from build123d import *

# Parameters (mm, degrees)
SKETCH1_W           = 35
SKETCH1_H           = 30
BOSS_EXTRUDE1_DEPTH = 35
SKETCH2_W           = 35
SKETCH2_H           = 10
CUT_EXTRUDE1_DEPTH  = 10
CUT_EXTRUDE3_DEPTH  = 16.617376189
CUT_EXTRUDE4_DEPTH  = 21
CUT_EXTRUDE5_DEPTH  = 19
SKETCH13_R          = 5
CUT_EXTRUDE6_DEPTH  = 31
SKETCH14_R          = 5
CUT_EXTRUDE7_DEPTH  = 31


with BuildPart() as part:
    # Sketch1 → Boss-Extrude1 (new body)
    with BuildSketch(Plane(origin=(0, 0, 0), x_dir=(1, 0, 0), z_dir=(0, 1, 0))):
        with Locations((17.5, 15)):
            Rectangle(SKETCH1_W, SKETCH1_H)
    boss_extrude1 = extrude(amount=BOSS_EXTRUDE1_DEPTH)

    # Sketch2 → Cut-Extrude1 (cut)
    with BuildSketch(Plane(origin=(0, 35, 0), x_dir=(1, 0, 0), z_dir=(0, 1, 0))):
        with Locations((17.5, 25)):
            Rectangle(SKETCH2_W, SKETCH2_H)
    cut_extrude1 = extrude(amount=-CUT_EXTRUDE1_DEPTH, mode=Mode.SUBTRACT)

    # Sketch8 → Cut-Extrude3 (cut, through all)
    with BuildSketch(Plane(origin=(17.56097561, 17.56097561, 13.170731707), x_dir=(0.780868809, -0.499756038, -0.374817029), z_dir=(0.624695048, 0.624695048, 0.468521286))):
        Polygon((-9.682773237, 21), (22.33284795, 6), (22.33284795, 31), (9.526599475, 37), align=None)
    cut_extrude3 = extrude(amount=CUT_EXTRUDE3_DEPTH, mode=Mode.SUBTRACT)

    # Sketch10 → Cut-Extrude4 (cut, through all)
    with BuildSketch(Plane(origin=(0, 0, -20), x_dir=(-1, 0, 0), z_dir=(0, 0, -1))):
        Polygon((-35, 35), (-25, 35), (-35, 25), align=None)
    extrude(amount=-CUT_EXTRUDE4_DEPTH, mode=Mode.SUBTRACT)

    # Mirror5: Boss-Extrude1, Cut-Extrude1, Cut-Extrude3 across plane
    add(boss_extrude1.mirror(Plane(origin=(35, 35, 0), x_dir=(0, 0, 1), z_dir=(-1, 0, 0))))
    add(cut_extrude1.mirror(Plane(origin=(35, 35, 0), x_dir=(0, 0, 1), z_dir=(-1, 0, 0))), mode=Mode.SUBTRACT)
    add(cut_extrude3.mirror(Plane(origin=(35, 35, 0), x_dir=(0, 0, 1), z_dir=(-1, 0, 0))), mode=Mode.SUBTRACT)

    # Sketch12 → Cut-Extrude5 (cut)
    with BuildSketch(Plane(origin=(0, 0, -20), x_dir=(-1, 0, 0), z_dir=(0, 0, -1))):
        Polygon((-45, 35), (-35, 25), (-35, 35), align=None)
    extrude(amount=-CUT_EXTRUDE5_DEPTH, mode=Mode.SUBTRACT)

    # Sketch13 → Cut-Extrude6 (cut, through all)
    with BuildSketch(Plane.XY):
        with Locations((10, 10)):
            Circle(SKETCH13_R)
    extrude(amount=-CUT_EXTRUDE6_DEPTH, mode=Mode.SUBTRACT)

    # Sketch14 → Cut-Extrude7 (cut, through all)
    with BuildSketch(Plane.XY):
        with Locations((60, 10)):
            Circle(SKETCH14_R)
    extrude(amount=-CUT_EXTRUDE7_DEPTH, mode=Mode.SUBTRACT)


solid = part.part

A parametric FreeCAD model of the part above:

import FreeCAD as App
import Part
import Sketcher
from FreeCAD import Vector

doc = App.newDocument("Part")
params = doc.addObject("Spreadsheet::Sheet", "Params")
for row, (alias, value) in enumerate([
    ("sketch1_width", "35 mm"),
    ("sketch1_height", "30 mm"),
    ("pad1_length", "35 mm"),
    ("sketch2_width", "35 mm"),
    ("sketch2_height", "10 mm"),
    ("pocket1_length", "10 mm"),
    ("sketch3_height", "25 mm"),
    ("sketch3_length", "25 mm"),
    ("sketch4_width", "10 mm"),
    ("sketch5_width", "10 mm"),
    ("pocket4_length", "19 mm"),
    ("sketch6_diameter", "10 mm"),
    ("sketch7_diameter", "10 mm"),
], start=1):
    params.set(f"A{row}", alias)
    params.set(f"B{row}", "=" + value)
    params.setAlias(f"B{row}", alias)

body = doc.addObject("PartDesign::Body", "Body")
body.AllowCompound = True

sketch1 = body.newObject("Sketcher::SketchObject", "Sketch")
sketch1.AttachmentSupport = (doc.getObject("XZ_Plane"), [""])
sketch1.MapMode = "FlatFace"
sketch1.addGeometry([
    Part.LineSegment(Vector(0, -30, 0), Vector(0, 0, 0)),
    Part.LineSegment(Vector(0, 0, 0), Vector(35, 0, 0)),
    Part.LineSegment(Vector(35, 0, 0), Vector(35, -30, 0)),
    Part.LineSegment(Vector(35, -30, 0), Vector(0, -30, 0)),
], False)
sketch1.addConstraint([
    Sketcher.Constraint("Coincident", 0, 2, 1, 1),
    Sketcher.Constraint("Coincident", 1, 2, 2, 1),
    Sketcher.Constraint("Coincident", 2, 2, 3, 1),
    Sketcher.Constraint("Coincident", 3, 2, 0, 1),
    Sketcher.Constraint("Vertical", 0),
    Sketcher.Constraint("Horizontal", 1),
    Sketcher.Constraint("Vertical", 2),
    Sketcher.Constraint("Horizontal", 3),
    Sketcher.Constraint("Coincident", 0, 2, -1, 1),
    Sketcher.Constraint("DistanceX", 1, 1, 1, 2, 35.0),
    Sketcher.Constraint("DistanceY", 0, 1, 0, 2, 30.0),
])
sketch1.setExpression("Constraints[9]", "Params.sketch1_width")
sketch1.setExpression("Constraints[10]", "Params.sketch1_height")
pad1 = body.newObject("PartDesign::Pad", "Pad")
pad1.Profile = sketch1
pad1.setExpression("Length", "Params.pad1_length")
pad1.Reversed = True

sketch2 = body.newObject("Sketcher::SketchObject", "Sketch001")
sketch2.AttachmentSupport = (doc.getObject("XZ_Plane"), [""])
sketch2.MapMode = "FlatFace"
sketch2.AttachmentOffset = App.Placement(Vector(0, 0, -35), App.Rotation())
sketch2.addGeometry([
    Part.LineSegment(Vector(0, -30, 0), Vector(0, -20, 0)),
    Part.LineSegment(Vector(0, -20, 0), Vector(35, -20, 0)),
    Part.LineSegment(Vector(35, -20, 0), Vector(35, -30, 0)),
    Part.LineSegment(Vector(35, -30, 0), Vector(0, -30, 0)),
], False)
sketch2.addConstraint([
    Sketcher.Constraint("Coincident", 0, 2, 1, 1),
    Sketcher.Constraint("Coincident", 1, 2, 2, 1),
    Sketcher.Constraint("Coincident", 2, 2, 3, 1),
    Sketcher.Constraint("Coincident", 3, 2, 0, 1),
    Sketcher.Constraint("Vertical", 0),
    Sketcher.Constraint("Horizontal", 1),
    Sketcher.Constraint("Vertical", 2),
    Sketcher.Constraint("Horizontal", 3),
    Sketcher.Constraint("PointOnObject", 0, 2, -2),
    Sketcher.Constraint("DistanceX", 1, 1, 1, 2, 35.0),
    Sketcher.Constraint("DistanceY", 0, 1, 0, 2, 10.0),
    Sketcher.Constraint("DistanceY", 0, 2, -1, 1, 20.0),
])
sketch2.setExpression("Constraints[9]", "Params.sketch2_width")
sketch2.setExpression("Constraints[10]", "Params.sketch2_height")
pocket1 = body.newObject("PartDesign::Pocket", "Pocket")
pocket1.Profile = sketch2
pocket1.setExpression("Length", "Params.pocket1_length")
pocket1.Reversed = True

sketch3 = body.newObject("Sketcher::SketchObject", "Sketch002")
sketch3.Placement = App.Placement(Vector(17.560976, 17.560976, 13.170732), App.Rotation(Vector(0.780868809, -0.499756038, -0.374817029), Vector(0, 0.600000001, -0.8), Vector(0.624695048, 0.624695048, 0.468521286), "ZXY"))
sketch3.addGeometry([
    Part.LineSegment(Vector(-9.682773, 21, 0), Vector(22.332848, 6, 0)),
    Part.LineSegment(Vector(22.332848, 6, 0), Vector(22.332848, 31, 0)),
    Part.LineSegment(Vector(22.332848, 31, 0), Vector(9.526599, 37, 0)),
    Part.LineSegment(Vector(9.526599, 37, 0), Vector(-9.682773, 21, 0)),
], False)
sketch3.addConstraint([
    Sketcher.Constraint("Coincident", 0, 2, 1, 1),
    Sketcher.Constraint("Coincident", 1, 2, 2, 1),
    Sketcher.Constraint("Coincident", 2, 2, 3, 1),
    Sketcher.Constraint("Coincident", 3, 2, 0, 1),
    Sketcher.Constraint("Vertical", 1),
    Sketcher.Constraint("Parallel", 0, 2),
    Sketcher.Constraint("DistanceY", 1, 1, 1, 2, 25.0),
    Sketcher.Constraint("Distance", 3, 25.0),
    Sketcher.Constraint("DistanceY", -1, 1, 0, 2, 6.0),
    Sketcher.Constraint("DistanceY", -1, 1, 2, 2, 37.0),
    Sketcher.Constraint("DistanceY", -1, 1, 3, 2, 21.0),
    Sketcher.Constraint("DistanceX", -1, 1, 2, 2, 9.526599),
])
sketch3.setExpression("Constraints[6]", "Params.sketch3_height")
sketch3.setExpression("Constraints[7]", "Params.sketch3_length")
pocket2 = body.newObject("PartDesign::Pocket", "Pocket001")
pocket2.Profile = sketch3
pocket2.Type = "ThroughAll"
pocket2.Reversed = True

sketch4 = body.newObject("Sketcher::SketchObject", "Sketch003")
sketch4.AttachmentSupport = (doc.getObject("XY_Plane"), [""])
sketch4.MapMode = "FlatFace"
sketch4.AttachmentOffset = App.Placement(Vector(0, 0, -20), App.Rotation())
sketch4.addGeometry([
    Part.LineSegment(Vector(25, 35, 0), Vector(35, 35, 0)),
    Part.LineSegment(Vector(35, 35, 0), Vector(35, 25, 0)),
    Part.LineSegment(Vector(35, 25, 0), Vector(25, 35, 0)),
], False)
sketch4.addConstraint([
    Sketcher.Constraint("Coincident", 0, 2, 1, 1),
    Sketcher.Constraint("Coincident", 1, 2, 2, 1),
    Sketcher.Constraint("Coincident", 2, 2, 0, 1),
    Sketcher.Constraint("Horizontal", 0),
    Sketcher.Constraint("Vertical", 1),
    Sketcher.Constraint("Equal", 0, 1),
    Sketcher.Constraint("DistanceX", 0, 1, 0, 2, 10.0),
    Sketcher.Constraint("DistanceX", -1, 1, 0, 2, 35.0),
    Sketcher.Constraint("DistanceY", -1, 1, 0, 2, 35.0),
])
sketch4.setExpression("Constraints[6]", "Params.sketch4_width")
pocket3 = body.newObject("PartDesign::Pocket", "Pocket002")
pocket3.Profile = sketch4
pocket3.Type = "ThroughAll"
pocket3.Reversed = True
doc.recompute()

datumplane = body.newObject("PartDesign::Plane", "DatumPlane")
datumplane.AttachmentSupport = (doc.getObject("YZ_Plane"), [""])
datumplane.MapMode = "FlatFace"
datumplane.AttachmentOffset = App.Placement(Vector(0, 0, 35), App.Rotation())
mirrored = body.newObject("PartDesign::Mirrored", "Mirrored")
mirrored.Originals = [pad1, pocket1, pocket2]
mirrored.MirrorPlane = (datumplane, [""])
body.Tip = mirrored

sketch5 = body.newObject("Sketcher::SketchObject", "Sketch004")
sketch5.AttachmentSupport = (doc.getObject("XY_Plane"), [""])
sketch5.MapMode = "FlatFace"
sketch5.AttachmentOffset = App.Placement(Vector(0, 0, -20), App.Rotation())
sketch5.addGeometry([
    Part.LineSegment(Vector(45, 35, 0), Vector(35, 25, 0)),
    Part.LineSegment(Vector(35, 25, 0), Vector(35, 35, 0)),
    Part.LineSegment(Vector(35, 35, 0), Vector(45, 35, 0)),
], False)
sketch5.addConstraint([
    Sketcher.Constraint("Coincident", 0, 2, 1, 1),
    Sketcher.Constraint("Coincident", 1, 2, 2, 1),
    Sketcher.Constraint("Coincident", 2, 2, 0, 1),
    Sketcher.Constraint("Vertical", 1),
    Sketcher.Constraint("Horizontal", 2),
    Sketcher.Constraint("Equal", 2, 1),
    Sketcher.Constraint("DistanceX", 2, 1, 2, 2, 10.0),
    Sketcher.Constraint("DistanceX", -1, 1, 0, 2, 35.0),
    Sketcher.Constraint("DistanceY", -1, 1, 0, 2, 25.0),
])
sketch5.setExpression("Constraints[6]", "Params.sketch5_width")
pocket4 = body.newObject("PartDesign::Pocket", "Pocket003")
pocket4.Profile = sketch5
pocket4.setExpression("Length", "Params.pocket4_length")
pocket4.Reversed = True

sketch6 = body.newObject("Sketcher::SketchObject", "Sketch005")
sketch6.AttachmentSupport = (doc.getObject("XY_Plane"), [""])
sketch6.MapMode = "FlatFace"
sketch6.addGeometry(Part.Circle(Vector(10, 10, 0), Vector(0, 0, 1), 5), False)
sketch6.addConstraint([
    Sketcher.Constraint("Diameter", 0, 10.0),
    Sketcher.Constraint("DistanceX", -1, 1, 0, 3, 10.0),
    Sketcher.Constraint("DistanceY", -1, 1, 0, 3, 10.0),
])
sketch6.setExpression("Constraints[0]", "Params.sketch6_diameter")
pocket5 = body.newObject("PartDesign::Pocket", "Pocket004")
pocket5.Profile = sketch6
pocket5.Type = "ThroughAll"

sketch7 = body.newObject("Sketcher::SketchObject", "Sketch006")
sketch7.AttachmentSupport = (doc.getObject("XY_Plane"), [""])
sketch7.MapMode = "FlatFace"
sketch7.addGeometry(Part.Circle(Vector(60, 10, 0), Vector(0, 0, 1), 5), False)
sketch7.addConstraint([
    Sketcher.Constraint("Diameter", 0, 10.0),
    Sketcher.Constraint("DistanceX", -1, 1, 0, 3, 60.0),
    Sketcher.Constraint("DistanceY", -1, 1, 0, 3, 10.0),
])
sketch7.setExpression("Constraints[0]", "Params.sketch7_diameter")
pocket6 = body.newObject("PartDesign::Pocket", "Pocket005")
pocket6.Profile = sketch7
pocket6.Type = "ThroughAll"

doc.recompute()
